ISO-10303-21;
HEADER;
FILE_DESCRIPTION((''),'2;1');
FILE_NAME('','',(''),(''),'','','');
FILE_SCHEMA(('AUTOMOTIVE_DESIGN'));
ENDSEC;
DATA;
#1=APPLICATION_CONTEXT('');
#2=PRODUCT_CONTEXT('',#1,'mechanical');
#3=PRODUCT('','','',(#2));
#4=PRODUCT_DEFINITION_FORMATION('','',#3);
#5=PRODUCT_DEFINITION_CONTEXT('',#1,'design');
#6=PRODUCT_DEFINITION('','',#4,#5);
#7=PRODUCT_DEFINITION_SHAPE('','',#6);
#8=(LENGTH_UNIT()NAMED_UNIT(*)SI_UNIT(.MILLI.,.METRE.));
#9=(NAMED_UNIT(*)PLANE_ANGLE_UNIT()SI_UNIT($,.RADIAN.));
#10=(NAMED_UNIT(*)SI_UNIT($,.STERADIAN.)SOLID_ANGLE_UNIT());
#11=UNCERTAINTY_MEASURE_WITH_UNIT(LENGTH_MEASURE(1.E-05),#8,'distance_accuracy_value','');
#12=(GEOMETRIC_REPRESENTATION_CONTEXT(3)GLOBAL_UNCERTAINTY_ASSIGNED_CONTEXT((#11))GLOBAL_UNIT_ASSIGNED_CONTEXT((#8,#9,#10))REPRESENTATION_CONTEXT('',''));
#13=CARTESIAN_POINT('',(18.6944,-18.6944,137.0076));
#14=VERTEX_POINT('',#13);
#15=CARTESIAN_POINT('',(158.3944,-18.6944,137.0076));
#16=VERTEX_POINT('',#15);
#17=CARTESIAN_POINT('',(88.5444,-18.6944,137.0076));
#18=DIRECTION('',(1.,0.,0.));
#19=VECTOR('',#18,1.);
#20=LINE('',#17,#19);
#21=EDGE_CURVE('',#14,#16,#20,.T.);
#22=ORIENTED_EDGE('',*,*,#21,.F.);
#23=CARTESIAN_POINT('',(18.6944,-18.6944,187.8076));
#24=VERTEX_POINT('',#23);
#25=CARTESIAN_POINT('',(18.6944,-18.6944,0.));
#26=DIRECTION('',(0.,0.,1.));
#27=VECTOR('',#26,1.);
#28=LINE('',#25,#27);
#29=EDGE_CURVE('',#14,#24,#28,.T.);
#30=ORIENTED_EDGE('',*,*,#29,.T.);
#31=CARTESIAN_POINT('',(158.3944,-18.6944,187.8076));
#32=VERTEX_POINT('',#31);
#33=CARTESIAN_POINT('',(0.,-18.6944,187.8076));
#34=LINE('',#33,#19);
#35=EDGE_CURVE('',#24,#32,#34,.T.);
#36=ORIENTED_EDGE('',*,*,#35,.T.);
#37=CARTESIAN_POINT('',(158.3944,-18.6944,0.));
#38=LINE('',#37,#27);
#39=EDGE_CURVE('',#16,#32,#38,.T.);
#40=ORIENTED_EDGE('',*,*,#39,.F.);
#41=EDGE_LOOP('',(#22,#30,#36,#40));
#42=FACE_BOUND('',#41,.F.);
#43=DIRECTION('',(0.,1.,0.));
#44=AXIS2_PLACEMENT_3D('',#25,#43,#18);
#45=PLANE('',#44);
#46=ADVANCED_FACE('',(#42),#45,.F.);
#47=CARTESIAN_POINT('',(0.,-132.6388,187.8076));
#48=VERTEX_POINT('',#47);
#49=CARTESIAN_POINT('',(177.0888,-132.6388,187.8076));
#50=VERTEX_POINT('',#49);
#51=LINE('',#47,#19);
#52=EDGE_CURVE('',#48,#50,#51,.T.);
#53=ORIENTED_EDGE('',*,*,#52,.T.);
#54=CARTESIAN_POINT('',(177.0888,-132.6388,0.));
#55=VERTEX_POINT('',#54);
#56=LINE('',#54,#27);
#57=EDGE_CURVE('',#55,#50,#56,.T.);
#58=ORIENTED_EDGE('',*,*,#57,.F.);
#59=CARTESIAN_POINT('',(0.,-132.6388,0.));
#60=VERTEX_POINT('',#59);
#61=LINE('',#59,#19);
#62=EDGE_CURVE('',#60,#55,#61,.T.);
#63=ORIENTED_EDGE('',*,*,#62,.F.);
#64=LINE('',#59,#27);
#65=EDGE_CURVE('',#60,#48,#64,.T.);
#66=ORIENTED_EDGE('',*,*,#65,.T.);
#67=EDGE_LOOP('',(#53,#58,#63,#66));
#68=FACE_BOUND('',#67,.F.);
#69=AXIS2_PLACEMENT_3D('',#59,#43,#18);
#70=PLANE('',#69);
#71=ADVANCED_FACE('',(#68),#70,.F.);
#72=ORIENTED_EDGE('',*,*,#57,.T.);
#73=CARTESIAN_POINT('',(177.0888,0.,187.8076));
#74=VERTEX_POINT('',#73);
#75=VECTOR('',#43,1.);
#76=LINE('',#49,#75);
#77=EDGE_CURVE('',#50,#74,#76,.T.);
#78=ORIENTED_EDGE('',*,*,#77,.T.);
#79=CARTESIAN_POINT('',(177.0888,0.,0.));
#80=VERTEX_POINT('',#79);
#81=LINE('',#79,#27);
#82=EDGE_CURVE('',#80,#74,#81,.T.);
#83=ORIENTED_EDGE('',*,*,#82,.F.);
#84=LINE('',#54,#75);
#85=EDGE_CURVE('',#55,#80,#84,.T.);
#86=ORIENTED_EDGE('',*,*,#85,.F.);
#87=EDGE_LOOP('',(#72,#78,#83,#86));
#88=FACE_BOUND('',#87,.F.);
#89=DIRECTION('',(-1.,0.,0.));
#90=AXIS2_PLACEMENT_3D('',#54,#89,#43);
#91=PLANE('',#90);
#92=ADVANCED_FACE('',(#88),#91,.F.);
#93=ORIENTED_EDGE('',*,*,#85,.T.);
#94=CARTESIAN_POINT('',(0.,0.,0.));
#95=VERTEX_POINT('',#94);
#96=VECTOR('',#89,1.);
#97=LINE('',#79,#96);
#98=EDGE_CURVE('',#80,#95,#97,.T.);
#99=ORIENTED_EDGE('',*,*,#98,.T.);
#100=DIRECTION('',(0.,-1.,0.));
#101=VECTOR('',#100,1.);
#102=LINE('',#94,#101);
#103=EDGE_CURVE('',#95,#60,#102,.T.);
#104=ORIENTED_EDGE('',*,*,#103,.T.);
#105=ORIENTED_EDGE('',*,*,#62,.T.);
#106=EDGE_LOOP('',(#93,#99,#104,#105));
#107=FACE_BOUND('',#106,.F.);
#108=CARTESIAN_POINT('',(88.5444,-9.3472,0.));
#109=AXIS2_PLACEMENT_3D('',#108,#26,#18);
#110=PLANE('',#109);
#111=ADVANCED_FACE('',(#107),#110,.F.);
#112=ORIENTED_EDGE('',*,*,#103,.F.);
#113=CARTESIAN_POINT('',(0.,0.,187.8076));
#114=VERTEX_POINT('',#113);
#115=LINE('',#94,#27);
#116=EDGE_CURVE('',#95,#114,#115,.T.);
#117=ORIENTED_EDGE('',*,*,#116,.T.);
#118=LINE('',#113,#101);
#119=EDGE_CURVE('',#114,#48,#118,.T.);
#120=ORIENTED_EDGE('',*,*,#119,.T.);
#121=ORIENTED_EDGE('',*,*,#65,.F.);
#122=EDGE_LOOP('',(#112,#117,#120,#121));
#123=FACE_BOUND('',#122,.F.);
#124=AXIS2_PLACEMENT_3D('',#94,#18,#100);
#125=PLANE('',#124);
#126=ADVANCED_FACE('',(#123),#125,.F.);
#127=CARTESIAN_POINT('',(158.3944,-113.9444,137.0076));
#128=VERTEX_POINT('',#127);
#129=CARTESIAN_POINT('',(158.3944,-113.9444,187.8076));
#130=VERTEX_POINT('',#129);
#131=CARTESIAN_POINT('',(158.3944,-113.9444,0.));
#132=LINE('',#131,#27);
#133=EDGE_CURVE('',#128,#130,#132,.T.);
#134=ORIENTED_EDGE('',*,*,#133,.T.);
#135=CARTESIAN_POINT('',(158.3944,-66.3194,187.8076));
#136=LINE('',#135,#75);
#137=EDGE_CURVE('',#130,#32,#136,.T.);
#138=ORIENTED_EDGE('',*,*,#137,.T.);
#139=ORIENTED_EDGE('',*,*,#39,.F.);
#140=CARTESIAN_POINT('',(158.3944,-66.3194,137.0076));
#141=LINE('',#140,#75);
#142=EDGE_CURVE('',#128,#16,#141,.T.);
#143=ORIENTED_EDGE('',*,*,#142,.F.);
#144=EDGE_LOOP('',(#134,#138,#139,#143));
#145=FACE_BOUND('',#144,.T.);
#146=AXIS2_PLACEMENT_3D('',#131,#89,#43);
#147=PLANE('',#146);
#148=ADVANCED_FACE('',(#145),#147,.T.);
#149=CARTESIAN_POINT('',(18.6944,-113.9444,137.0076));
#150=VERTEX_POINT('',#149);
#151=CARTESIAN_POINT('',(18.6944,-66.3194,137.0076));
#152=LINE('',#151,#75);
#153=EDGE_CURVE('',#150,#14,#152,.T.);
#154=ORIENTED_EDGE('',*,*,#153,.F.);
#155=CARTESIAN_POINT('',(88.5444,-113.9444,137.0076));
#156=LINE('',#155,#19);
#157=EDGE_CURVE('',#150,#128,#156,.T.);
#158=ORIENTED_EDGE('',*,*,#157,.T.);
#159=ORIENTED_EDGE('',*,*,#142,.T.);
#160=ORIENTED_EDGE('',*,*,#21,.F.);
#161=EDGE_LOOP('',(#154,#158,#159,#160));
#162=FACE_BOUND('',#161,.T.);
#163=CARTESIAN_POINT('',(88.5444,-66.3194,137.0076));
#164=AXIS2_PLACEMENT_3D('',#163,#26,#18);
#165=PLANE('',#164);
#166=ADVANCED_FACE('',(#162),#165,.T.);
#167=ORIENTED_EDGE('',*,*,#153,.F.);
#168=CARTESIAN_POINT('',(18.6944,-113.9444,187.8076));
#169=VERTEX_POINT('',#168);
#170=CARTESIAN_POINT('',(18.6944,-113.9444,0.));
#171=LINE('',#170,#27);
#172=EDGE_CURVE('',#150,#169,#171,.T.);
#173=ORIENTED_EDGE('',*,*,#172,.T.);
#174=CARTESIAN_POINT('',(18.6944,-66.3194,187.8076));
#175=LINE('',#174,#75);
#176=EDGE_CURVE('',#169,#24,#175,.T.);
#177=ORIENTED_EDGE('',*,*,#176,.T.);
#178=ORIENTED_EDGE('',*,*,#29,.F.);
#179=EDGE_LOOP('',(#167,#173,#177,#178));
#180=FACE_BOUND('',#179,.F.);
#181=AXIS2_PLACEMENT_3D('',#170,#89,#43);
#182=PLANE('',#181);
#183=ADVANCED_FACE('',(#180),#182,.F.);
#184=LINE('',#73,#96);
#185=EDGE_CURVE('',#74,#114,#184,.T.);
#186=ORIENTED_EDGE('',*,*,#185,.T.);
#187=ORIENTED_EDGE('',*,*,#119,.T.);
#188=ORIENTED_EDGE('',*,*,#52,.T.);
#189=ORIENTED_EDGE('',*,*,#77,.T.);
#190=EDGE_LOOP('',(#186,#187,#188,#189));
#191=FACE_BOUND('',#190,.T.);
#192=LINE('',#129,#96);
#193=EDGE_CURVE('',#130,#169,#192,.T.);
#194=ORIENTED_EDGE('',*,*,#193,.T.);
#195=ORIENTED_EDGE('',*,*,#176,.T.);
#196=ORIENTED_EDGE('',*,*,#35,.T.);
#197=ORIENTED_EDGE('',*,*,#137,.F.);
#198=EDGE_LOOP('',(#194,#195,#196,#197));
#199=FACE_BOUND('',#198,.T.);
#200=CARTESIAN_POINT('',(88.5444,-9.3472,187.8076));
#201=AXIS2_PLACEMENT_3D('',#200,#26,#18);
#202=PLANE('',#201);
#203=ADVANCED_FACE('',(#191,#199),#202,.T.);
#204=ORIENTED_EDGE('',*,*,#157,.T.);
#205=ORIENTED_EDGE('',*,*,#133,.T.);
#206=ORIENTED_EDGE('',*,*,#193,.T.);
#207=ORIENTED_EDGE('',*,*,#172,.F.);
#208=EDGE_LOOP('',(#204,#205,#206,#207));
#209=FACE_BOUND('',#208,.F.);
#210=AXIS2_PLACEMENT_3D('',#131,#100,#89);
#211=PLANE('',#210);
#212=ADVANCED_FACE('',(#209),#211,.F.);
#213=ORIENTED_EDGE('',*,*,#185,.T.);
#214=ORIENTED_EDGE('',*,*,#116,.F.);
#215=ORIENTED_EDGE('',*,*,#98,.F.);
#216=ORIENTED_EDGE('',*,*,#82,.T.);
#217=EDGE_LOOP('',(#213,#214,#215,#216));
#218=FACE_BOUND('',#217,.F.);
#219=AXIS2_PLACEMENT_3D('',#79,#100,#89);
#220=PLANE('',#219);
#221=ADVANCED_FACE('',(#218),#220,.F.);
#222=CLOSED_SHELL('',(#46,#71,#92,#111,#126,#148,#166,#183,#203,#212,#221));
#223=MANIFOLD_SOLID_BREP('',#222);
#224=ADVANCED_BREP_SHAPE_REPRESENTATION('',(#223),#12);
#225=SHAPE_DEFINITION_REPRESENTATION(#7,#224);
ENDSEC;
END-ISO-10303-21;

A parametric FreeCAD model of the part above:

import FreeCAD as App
import Part
import Sketcher
from FreeCAD import Vector
Q = App.Units.Quantity

doc = App.newDocument("Part")
body = doc.addObject("PartDesign::Body", "Body")

# Sketch on XY plane
sketch1 = body.newObject("Sketcher::SketchObject", "Sketch")
sketch1.AttachmentSupport = (doc.getObject("XY_Plane"), [""])
sketch1.MapMode = "FlatFace"
sketch1.addGeometry([
    Part.LineSegment(Vector(19, -19, 0), Vector(19, -114, 0)),
    Part.LineSegment(Vector(19, -114, 0), Vector(158, -114, 0)),
    Part.LineSegment(Vector(158, -114, 0), Vector(158, -19, 0)),
    Part.LineSegment(Vector(158, -19, 0), Vector(19, -19, 0)),
], False)
sketch1.addConstraint([
    Sketcher.Constraint("Coincident", 0, 2, 1, 1),
    Sketcher.Constraint("Coincident", 1, 2, 2, 1),
    Sketcher.Constraint("Coincident", 2, 2, 3, 1),
    Sketcher.Constraint("Coincident", 3, 2, 0, 1),
    Sketcher.Constraint("Vertical", 0),
    Sketcher.Constraint("Horizontal", 1),
    Sketcher.Constraint("Vertical", 2),
    Sketcher.Constraint("Horizontal", 3),
    Sketcher.Constraint("DistanceX", 1, 1, 1, 2, Q("5.5 in")),
    Sketcher.Constraint("DistanceY", 0, 2, 0, 1, Q("3.75 in")),
    Sketcher.Constraint("DistanceX", -1, 1, 0, 2, Q("0.736 in")),
    Sketcher.Constraint("DistanceY", 0, 2, -1, 1, Q("4.486 in")),
])
pad1 = body.newObject("PartDesign::Pad", "Pad")
pad1.Profile = sketch1
pad1.Length = Q("5.394 in")

# Sketch on XY plane
sketch2 = body.newObject("Sketcher::SketchObject", "Sketch001")
sketch2.AttachmentSupport = (doc.getObject("XY_Plane"), [""])
sketch2.MapMode = "FlatFace"
sketch2.addGeometry([
    Part.LineSegment(Vector(177, 0, 0), Vector(0, 0, 0)),  # 0
    Part.LineSegment(Vector(0, 0, 0), Vector(0, -133, 0)),  # 1
    Part.LineSegment(Vector(0, -133, 0), Vector(177, -133, 0)),  # 2
    Part.LineSegment(Vector(177, -133, 0), Vector(177, 0, 0)),  # 3
    Part.LineSegment(Vector(19, -19, 0), Vector(158, -19, 0)),  # 4
    Part.LineSegment(Vector(158, -19, 0), Vector(158, -114, 0)),  # 5
    Part.LineSegment(Vector(158, -114, 0), Vector(19, -114, 0)),  # 6
    Part.LineSegment(Vector(19, -114, 0), Vector(19, -19, 0)),  # 7
], False)
sketch2.addConstraint([
    Sketcher.Constraint("Coincident", 0, 2, 1, 1),
    Sketcher.Constraint("Coincident", 1, 2, 2, 1),
    Sketcher.Constraint("Coincident", 2, 2, 3, 1),
    Sketcher.Constraint("Coincident", 3, 2, 0, 1),
    Sketcher.Constraint("Coincident", 4, 2, 5, 1),
    Sketcher.Constraint("Coincident", 5, 2, 6, 1),
    Sketcher.Constraint("Coincident", 6, 2, 7, 1),
    Sketcher.Constraint("Coincident", 7, 2, 4, 1),
    Sketcher.Constraint("Horizontal", 0),
    Sketcher.Constraint("Vertical", 1),
    Sketcher.Constraint("Horizontal", 2),
    Sketcher.Constraint("Vertical", 3),
    Sketcher.Constraint("Horizontal", 4),
    Sketcher.Constraint("Vertical", 5),
    Sketcher.Constraint("Horizontal", 6),
    Sketcher.Constraint("Vertical", 7),
    Sketcher.Constraint("Coincident", 0, 2, -1, 1),
    Sketcher.Constraint("DistanceX", 4, 1, 4, 2, Q("5.5 in")),
    Sketcher.Constraint("DistanceY", 5, 2, 5, 1, Q("3.75 in")),
    Sketcher.Constraint("DistanceX", 0, 2, 0, 1, Q("6.972 in")),
    Sketcher.Constraint("DistanceY", 1, 2, 1, 1, Q("5.222 in")),
    Sketcher.Constraint("DistanceX", -1, 1, 4, 2, Q("6.236 in")),
    Sketcher.Constraint("DistanceY", 4, 2, -1, 1, Q("0.736 in")),
])
pad2 = body.newObject("PartDesign::Pad", "Pad001")
pad2.Profile = sketch2
pad2.Length = Q("7.394 in")

doc.recompute()
